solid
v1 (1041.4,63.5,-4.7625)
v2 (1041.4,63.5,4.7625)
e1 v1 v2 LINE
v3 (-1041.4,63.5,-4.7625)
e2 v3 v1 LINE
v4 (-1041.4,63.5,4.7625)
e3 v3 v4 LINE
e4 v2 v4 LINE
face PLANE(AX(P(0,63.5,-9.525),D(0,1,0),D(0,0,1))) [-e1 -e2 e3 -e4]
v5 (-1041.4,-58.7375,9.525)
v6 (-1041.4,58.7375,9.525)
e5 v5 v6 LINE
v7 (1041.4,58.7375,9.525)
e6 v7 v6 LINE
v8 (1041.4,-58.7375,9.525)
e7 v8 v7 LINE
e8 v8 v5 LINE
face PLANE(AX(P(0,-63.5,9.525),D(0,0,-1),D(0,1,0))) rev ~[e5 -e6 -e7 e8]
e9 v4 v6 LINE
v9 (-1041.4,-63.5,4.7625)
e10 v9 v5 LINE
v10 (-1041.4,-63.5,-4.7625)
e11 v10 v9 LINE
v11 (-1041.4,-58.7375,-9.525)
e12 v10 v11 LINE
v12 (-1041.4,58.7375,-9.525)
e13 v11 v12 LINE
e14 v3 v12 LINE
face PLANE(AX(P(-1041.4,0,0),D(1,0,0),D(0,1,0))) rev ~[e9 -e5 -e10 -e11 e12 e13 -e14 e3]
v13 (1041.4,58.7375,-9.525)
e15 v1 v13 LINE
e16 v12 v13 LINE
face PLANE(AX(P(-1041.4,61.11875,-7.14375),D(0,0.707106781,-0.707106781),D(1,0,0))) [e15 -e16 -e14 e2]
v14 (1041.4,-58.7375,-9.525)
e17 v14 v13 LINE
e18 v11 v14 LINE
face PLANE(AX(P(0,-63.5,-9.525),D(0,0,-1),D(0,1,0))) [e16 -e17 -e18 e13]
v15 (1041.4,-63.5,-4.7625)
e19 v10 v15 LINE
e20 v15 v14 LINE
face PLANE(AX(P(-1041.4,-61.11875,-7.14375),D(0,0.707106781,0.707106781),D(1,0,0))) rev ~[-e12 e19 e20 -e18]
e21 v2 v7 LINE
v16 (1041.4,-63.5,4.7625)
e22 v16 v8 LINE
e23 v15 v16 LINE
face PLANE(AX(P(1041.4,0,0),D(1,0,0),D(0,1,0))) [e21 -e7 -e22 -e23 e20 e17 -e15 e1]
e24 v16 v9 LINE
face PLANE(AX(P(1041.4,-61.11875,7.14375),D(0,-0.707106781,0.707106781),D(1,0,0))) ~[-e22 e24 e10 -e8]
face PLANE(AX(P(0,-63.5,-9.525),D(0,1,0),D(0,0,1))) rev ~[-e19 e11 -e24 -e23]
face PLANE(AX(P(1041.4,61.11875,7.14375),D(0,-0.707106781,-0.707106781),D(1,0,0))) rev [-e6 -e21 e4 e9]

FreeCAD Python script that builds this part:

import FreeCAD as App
import Part
import Sketcher
Q = App.Units.Quantity


def edges_at(feature, points):
    """Names of the edges that pass closest to the given points."""
    edges = feature.Shape.Edges
    near = lambda p: min(range(len(edges)), key=lambda i: edges[i].distToShape(Part.Vertex(*p))[0])
    return sorted({f"Edge{near(p) + 1}" for p in points})

doc = App.newDocument("Part")
body = doc.addObject("PartDesign::Body", "Body")

sketch1 = doc.addObject("Sketcher::SketchObject", "Sketch")
body.addObject(sketch1)
sketch1.AttachmentSupport = (doc.YZ_Plane, [""])
sketch1.MapMode = "FlatFace"
sketch1.addGeometry([
    Part.LineSegment(App.Vector(-64, 10, 0), App.Vector(-64, -10, 0)),
    Part.LineSegment(App.Vector(-64, -10, 0), App.Vector(64, -10, 0)),
    Part.LineSegment(App.Vector(64, -10, 0), App.Vector(64, 10, 0)),
    Part.LineSegment(App.Vector(64, 10, 0), App.Vector(-64, 10, 0)),
], False)
sketch1.addConstraint([
    Sketcher.Constraint("Coincident", 0, 2, 1, 1),
    Sketcher.Constraint("Coincident", 1, 2, 2, 1),
    Sketcher.Constraint("Coincident", 2, 2, 3, 1),
    Sketcher.Constraint("Coincident", 3, 2, 0, 1),
    Sketcher.Constraint("Vertical", 0),
    Sketcher.Constraint("Horizontal", 1),
    Sketcher.Constraint("Vertical", 2),
    Sketcher.Constraint("Horizontal", 3),
    Sketcher.Constraint("Symmetric", 0, 2, 2, 2, -1, 1),
    Sketcher.Constraint("DistanceX", 1, 1, 1, 2, Q("5 in")),
    Sketcher.Constraint("DistanceY", 0, 2, 0, 1, Q("0.75 in")),
])
pad1 = doc.addObject("PartDesign::Pad", "Pad")
body.addObject(pad1)
pad1.Profile = sketch1
pad1.Length = Q("82 in")
pad1.Midplane = True
doc.recompute()

chamfer = doc.addObject("PartDesign::Chamfer", "Chamfer")
body.addObject(chamfer)
chamfer.Base = (pad1, edges_at(pad1, [
    (0, -63.5, 9.525),
    (0, -63.5, -9.525),
    (0, 63.5, 9.525),
    (0, 63.5, -9.525),
]))
chamfer.Size = Q("0.1875 in")

doc.recompute()
